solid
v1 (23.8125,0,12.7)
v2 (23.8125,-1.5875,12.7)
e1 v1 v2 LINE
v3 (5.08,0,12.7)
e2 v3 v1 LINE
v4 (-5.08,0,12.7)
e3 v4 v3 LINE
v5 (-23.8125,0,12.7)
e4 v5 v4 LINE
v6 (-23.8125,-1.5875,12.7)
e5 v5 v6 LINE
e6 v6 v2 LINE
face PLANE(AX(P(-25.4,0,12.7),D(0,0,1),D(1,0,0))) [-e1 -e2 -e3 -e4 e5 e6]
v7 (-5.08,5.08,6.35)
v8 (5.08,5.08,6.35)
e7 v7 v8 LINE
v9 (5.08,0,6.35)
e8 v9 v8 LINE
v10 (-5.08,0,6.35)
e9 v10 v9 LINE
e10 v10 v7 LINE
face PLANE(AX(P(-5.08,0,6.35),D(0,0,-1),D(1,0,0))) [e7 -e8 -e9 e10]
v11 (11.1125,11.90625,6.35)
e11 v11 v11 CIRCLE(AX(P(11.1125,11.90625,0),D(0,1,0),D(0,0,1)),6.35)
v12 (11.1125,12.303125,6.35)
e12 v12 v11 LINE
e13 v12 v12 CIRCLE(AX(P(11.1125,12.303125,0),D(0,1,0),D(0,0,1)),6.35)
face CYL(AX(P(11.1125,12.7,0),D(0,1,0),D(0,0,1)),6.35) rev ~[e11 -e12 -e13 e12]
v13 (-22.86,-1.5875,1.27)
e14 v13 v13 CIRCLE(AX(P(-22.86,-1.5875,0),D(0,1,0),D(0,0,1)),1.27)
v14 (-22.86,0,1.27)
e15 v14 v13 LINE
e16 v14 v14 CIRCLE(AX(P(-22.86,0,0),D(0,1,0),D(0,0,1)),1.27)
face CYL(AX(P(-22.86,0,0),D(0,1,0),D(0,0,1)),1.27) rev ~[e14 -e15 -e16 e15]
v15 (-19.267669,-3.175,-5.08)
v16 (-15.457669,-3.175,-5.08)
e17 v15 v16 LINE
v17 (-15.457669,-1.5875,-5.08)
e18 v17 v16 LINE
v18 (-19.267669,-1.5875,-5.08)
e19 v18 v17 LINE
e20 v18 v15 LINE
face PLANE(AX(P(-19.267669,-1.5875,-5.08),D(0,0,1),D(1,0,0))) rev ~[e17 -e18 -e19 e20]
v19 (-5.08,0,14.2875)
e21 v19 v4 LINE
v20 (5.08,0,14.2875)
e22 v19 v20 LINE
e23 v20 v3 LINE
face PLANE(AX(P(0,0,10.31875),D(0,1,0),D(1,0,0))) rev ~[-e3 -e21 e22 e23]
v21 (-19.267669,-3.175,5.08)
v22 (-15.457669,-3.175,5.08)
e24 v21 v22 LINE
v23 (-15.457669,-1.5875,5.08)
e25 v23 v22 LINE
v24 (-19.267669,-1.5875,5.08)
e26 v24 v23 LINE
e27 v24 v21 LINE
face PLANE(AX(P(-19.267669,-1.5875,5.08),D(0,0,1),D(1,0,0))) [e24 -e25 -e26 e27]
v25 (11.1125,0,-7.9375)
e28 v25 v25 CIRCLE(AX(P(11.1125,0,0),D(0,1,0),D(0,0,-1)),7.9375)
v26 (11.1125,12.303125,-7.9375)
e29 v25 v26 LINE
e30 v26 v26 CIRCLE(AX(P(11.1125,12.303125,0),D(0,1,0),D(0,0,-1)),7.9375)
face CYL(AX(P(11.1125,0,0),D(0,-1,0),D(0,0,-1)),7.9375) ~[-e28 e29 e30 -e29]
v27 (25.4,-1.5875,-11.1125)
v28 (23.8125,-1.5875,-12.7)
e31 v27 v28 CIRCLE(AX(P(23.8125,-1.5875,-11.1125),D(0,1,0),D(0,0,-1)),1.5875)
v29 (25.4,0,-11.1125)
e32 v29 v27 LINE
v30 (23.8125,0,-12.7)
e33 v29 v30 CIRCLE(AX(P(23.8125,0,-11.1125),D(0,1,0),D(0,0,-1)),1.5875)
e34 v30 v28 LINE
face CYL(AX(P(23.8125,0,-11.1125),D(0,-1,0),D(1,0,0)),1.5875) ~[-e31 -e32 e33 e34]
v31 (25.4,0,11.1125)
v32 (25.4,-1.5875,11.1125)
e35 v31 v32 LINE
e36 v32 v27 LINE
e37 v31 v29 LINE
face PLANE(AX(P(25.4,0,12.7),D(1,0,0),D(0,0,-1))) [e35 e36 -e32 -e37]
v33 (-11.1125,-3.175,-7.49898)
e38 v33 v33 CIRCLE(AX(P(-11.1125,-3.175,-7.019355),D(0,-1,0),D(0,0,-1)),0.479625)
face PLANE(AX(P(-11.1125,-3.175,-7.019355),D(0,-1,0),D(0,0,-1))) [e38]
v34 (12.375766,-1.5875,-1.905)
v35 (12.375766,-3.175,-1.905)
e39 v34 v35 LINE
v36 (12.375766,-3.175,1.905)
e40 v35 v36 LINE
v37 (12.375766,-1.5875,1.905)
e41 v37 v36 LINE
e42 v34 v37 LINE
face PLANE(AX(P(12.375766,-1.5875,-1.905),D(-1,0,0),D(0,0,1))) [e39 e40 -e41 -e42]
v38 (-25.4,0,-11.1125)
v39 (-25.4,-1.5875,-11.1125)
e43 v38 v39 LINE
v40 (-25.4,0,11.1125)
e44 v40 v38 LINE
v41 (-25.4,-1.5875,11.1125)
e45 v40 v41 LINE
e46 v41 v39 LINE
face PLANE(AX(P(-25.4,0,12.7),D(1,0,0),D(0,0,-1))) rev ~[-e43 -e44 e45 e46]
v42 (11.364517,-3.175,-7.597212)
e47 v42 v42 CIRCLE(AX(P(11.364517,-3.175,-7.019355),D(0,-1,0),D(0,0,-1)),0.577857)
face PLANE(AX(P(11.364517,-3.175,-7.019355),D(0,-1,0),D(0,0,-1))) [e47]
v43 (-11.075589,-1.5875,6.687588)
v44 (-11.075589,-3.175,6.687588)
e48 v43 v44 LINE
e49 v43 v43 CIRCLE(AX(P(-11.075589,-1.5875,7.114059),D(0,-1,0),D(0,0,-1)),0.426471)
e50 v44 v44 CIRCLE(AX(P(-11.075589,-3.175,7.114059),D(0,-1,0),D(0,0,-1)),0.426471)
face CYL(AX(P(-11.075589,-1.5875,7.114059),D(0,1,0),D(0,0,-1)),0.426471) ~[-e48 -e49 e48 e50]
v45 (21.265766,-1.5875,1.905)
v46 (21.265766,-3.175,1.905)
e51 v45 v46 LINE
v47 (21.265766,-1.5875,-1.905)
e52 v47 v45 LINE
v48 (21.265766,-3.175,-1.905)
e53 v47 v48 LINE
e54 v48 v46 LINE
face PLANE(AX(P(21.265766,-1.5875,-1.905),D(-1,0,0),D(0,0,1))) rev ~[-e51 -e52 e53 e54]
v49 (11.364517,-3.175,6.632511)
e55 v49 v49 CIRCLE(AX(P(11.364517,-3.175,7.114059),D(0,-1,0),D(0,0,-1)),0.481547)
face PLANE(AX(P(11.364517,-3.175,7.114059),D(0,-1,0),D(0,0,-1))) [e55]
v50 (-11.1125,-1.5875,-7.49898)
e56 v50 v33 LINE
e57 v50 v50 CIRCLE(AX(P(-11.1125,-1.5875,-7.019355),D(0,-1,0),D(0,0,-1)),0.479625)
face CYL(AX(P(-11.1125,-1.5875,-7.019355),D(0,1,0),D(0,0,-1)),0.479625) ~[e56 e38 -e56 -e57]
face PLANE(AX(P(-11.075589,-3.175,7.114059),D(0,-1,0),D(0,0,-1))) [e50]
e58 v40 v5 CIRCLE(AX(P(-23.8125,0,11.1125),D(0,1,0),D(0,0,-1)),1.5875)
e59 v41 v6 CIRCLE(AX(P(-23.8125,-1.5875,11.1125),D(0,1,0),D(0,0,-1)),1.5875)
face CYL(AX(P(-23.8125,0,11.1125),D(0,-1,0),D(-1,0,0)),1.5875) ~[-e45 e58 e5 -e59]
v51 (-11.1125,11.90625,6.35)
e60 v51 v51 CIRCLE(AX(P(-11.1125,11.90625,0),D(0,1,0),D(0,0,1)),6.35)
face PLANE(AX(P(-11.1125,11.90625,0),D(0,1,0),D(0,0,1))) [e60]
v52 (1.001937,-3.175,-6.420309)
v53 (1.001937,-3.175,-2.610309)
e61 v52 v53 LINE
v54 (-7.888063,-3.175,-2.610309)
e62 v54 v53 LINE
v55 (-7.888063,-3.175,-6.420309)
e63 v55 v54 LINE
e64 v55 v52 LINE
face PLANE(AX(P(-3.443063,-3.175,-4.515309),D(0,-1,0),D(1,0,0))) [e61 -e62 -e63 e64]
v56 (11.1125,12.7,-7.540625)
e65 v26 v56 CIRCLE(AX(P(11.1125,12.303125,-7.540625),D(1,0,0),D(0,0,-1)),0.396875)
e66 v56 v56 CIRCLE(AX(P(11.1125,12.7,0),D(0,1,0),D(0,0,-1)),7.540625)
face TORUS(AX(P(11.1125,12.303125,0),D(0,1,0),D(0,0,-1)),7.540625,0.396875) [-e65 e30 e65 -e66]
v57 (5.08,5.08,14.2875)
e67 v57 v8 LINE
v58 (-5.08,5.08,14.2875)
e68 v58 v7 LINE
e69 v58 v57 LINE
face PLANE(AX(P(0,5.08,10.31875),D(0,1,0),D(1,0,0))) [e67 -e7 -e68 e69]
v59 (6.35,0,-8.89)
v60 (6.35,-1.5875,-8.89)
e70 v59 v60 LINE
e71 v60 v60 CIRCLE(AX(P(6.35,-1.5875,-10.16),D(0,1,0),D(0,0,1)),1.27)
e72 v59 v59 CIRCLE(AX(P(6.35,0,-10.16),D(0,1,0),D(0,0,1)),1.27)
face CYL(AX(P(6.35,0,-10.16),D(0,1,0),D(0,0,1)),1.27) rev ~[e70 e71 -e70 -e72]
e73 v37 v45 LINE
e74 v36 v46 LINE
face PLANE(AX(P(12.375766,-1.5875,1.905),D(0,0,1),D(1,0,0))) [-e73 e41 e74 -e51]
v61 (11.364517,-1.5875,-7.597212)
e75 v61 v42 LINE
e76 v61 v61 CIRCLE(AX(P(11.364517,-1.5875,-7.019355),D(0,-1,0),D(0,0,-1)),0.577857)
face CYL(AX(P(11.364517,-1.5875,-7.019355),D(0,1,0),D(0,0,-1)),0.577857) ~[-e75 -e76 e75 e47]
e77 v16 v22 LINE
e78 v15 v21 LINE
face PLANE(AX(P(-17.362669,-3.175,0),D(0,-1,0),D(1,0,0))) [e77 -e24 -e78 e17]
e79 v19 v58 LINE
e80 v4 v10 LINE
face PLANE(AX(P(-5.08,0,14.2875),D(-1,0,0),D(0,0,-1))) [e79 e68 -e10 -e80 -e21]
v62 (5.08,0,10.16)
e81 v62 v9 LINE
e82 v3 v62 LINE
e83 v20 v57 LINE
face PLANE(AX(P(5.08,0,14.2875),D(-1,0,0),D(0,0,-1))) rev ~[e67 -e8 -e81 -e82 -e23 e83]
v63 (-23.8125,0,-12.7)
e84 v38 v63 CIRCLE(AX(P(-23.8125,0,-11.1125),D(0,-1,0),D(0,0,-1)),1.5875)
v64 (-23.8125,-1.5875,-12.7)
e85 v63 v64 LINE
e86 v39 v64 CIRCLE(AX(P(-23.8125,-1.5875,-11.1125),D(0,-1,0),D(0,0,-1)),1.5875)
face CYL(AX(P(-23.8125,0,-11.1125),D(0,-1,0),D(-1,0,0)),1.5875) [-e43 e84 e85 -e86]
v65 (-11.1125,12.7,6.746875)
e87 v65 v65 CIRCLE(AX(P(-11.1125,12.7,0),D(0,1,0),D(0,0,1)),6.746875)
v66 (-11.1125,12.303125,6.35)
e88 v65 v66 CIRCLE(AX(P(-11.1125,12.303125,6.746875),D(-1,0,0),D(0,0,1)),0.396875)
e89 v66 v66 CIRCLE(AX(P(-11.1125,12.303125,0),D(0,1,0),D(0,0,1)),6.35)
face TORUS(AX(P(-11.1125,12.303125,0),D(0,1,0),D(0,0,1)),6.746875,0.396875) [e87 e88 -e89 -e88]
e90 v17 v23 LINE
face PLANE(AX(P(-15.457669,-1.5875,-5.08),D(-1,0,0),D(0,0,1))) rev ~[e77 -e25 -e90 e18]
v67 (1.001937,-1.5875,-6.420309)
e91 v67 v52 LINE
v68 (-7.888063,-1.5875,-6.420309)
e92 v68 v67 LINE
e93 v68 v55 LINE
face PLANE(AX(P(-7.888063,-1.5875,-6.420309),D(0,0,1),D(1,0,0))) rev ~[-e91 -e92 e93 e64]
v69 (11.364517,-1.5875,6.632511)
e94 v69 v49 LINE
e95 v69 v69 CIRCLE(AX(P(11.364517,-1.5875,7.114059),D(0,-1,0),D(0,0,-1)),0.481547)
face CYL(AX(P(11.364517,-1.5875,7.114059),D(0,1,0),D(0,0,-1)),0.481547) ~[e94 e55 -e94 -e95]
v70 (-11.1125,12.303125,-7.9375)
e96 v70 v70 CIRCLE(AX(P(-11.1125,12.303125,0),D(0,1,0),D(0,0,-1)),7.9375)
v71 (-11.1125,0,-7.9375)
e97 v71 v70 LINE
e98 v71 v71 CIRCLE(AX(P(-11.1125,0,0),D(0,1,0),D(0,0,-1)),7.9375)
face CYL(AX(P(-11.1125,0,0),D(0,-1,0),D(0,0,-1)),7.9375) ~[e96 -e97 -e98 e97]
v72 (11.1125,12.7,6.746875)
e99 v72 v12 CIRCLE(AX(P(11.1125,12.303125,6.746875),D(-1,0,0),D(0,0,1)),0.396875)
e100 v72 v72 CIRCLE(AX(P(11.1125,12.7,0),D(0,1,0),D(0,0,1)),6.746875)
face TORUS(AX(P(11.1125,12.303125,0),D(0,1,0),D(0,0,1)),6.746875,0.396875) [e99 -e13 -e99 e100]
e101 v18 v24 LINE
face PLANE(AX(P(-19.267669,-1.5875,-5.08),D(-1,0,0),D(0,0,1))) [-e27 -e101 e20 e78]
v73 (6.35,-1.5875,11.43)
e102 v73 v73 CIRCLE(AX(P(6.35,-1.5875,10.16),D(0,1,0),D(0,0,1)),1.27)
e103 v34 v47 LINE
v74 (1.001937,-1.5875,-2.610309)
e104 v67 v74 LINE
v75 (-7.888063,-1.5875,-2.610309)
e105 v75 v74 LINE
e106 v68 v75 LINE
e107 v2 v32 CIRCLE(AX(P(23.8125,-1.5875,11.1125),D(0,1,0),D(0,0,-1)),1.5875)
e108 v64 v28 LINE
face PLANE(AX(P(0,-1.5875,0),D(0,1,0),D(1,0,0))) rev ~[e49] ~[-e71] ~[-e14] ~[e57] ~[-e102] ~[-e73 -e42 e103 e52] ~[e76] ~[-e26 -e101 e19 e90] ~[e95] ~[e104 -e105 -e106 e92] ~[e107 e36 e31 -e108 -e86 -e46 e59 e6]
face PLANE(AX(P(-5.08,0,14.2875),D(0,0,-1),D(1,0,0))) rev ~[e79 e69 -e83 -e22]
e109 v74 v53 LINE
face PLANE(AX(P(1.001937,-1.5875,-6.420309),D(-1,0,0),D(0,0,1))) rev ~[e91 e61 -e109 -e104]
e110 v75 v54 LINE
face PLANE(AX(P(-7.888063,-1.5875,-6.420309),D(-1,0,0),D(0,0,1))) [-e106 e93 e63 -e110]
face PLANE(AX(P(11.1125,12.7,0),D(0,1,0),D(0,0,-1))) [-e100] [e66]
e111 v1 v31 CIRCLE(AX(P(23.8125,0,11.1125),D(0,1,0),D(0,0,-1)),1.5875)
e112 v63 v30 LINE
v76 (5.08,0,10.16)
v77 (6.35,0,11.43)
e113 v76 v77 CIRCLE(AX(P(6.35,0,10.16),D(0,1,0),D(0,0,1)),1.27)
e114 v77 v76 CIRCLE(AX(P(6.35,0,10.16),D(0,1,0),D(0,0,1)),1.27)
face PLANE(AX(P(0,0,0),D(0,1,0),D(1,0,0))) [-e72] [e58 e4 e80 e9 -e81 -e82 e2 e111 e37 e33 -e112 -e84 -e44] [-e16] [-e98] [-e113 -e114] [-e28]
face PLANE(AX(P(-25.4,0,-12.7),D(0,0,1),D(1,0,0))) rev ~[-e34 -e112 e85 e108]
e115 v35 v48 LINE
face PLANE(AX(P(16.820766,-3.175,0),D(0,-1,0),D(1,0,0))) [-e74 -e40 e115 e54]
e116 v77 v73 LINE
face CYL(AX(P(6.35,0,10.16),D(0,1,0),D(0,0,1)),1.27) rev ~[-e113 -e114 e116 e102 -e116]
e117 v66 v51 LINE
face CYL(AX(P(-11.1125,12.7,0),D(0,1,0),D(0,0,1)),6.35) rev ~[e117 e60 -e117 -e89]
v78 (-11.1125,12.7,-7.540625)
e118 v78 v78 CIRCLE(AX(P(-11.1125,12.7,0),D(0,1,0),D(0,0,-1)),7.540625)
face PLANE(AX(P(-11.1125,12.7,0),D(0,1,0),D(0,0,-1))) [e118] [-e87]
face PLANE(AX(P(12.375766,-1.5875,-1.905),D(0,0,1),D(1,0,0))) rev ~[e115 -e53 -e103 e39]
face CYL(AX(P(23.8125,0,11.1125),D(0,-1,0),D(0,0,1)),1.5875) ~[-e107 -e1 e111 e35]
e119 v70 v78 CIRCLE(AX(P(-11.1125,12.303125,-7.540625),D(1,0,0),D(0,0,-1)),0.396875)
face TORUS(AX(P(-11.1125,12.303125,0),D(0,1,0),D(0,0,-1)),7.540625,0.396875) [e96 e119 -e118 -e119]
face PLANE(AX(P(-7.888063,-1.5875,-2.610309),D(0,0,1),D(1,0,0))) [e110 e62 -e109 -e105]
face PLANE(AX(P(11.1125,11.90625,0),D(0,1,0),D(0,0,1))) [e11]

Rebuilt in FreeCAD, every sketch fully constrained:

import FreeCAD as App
import Part
import Sketcher
from FreeCAD import Vector
Q = App.Units.Quantity


def edges_at(feature, points):
    """Names of the edges that pass closest to the given points."""
    edges = feature.Shape.Edges
    near = lambda p: min(range(len(edges)), key=lambda i: edges[i].distToShape(Part.Vertex(*p))[0])
    return sorted({f"Edge{near(p) + 1}" for p in points})


def add_polygon(sketch, points):
    """Adds a closed chain of lines whose ends are joined by coincident constraints."""
    first, n = sketch.GeometryCount, len(points)
    for a, b in zip(points, points[1:] + points[:1]):
        sketch.addGeometry(Part.LineSegment(App.Vector(*a, 0), App.Vector(*b, 0)), False)
    for i in range(n):
        sketch.addConstraint(Sketcher.Constraint("Coincident", first + i, 2, first + (i + 1) % n, 1))

doc = App.newDocument("Part")
body = doc.addObject("PartDesign::Body", "Body")

sketch1 = doc.addObject("Sketcher::SketchObject", "Sketch")
body.addObject(sketch1)
sketch1.AttachmentSupport = (doc.XZ_Plane, [""])
sketch1.MapMode = "FlatFace"
add_polygon(sketch1, [(-25, -13), (-25, 13), (25, 13), (25, -13)])
sketch1.addConstraint([
    Sketcher.Constraint("Vertical", 0),
    Sketcher.Constraint("Horizontal", 1),
    Sketcher.Constraint("Vertical", 2),
    Sketcher.Constraint("Horizontal", 3),
    Sketcher.Constraint("Symmetric", 0, 2, 2, 2, -1, 1),
    Sketcher.Constraint("DistanceX", 1, 1, 1, 2, Q("2 in")),
    Sketcher.Constraint("DistanceY", 0, 1, 0, 2, Q("1 in")),
])
pad1 = doc.addObject("PartDesign::Pad", "Pad")
body.addObject(pad1)
pad1.Profile = sketch1
pad1.Length = Q("0.0625 in")
doc.recompute()

fillet = doc.addObject("PartDesign::Fillet", "Fillet")
body.addObject(fillet)
fillet.Base = (pad1, edges_at(pad1, [
    (25.4, -0.794, 12.7),
    (-25.4, -0.794, 12.7),
    (-25.4, -0.794, -12.7),
    (25.4, -0.794, -12.7),
]))
fillet.Radius = Q("0.0625 in")

sketch2 = doc.addObject("Sketcher::SketchObject", "Sketch001")
body.addObject(sketch2)
sketch2.AttachmentSupport = (doc.XZ_Plane, [""])
sketch2.MapMode = "FlatFace"
sketch2.addGeometry([
    Part.Circle(Vector(-22.9, 0, 0), Vector(0, 0, 1), 1.3),
    Part.Circle(Vector(6.3, -10.2, 0), Vector(0, 0, 1), 1.3),
    Part.Circle(Vector(6.3, 10.2, 0), Vector(0, 0, 1), 1.3),
], False)
sketch2.addConstraint([
    Sketcher.Constraint("Equal", 0, 1),
    Sketcher.Constraint("Equal", 1, 2),
    Sketcher.Constraint("Symmetric", 1, 3, 2, 3, -1),
    Sketcher.Constraint("PointOnObject", 0, 3, -1),
    Sketcher.Constraint("Diameter", 0, Q("0.1 in")),
    Sketcher.Constraint("DistanceX", 0, 3, -1, 1, Q("0.9 in")),
    Sketcher.Constraint("DistanceY", 1, 3, -1, 1, Q("0.4 in")),
    Sketcher.Constraint("DistanceX", -1, 1, 1, 3, Q("0.25 in")),
])
pocket1 = doc.addObject("PartDesign::Pocket", "Pocket")
body.addObject(pocket1)
pocket1.Profile = sketch2
pocket1.Type = "ThroughAll"
pocket1.Reversed = True

sketch3 = doc.addObject("Sketcher::SketchObject", "Sketch002")
body.addObject(sketch3)
sketch3.AttachmentSupport = (doc.XZ_Plane, [""])
sketch3.MapMode = "FlatFace"
sketch3.addGeometry([
    Part.Circle(Vector(11, 0, 0), Vector(0, 0, 1), 8),
    Part.Circle(Vector(-11, 0, 0), Vector(0, 0, 1), 8),
], False)
sketch3.addConstraint([
    Sketcher.Constraint("Equal", 0, 1),
    Sketcher.Constraint("Symmetric", 0, 3, 1, 3, -1, 1),
    Sketcher.Constraint("PointOnObject", 0, 3, -1),
    Sketcher.Constraint("Diameter", 0, Q("0.625 in")),
    Sketcher.Constraint("DistanceX", -1, 1, 0, 3, Q("0.4375 in")),
])
pad2 = doc.addObject("PartDesign::Pad", "Pad001")
body.addObject(pad2)
pad2.Profile = sketch3
pad2.Length = Q("0.5 in")
pad2.Reversed = True

sketch4 = doc.addObject("Sketcher::SketchObject", "Sketch003")
body.addObject(sketch4)
sketch4.AttachmentSupport = (doc.XZ_Plane, [""])
sketch4.MapMode = "FlatFace"
sketch4.AttachmentOffset = App.Placement(Vector(0, 0, -0.5 * 25.4), App.Rotation())
sketch4.addGeometry([
    Part.Circle(Vector(-11, 0, 0), Vector(0, 0, 1), 6),
    Part.Circle(Vector(11, 0, 0), Vector(0, 0, 1), 6),
], False)
sketch4.addConstraint([
    Sketcher.Constraint("Equal", 0, 1),
    Sketcher.Constraint("Symmetric", 0, 3, 1, 3, -1, 1),
    Sketcher.Constraint("PointOnObject", 0, 3, -1),
    Sketcher.Constraint("Diameter", 0, Q("0.5 in")),
    Sketcher.Constraint("DistanceX", 0, 3, -1, 1, Q("0.4375 in")),
])
pocket2 = doc.addObject("PartDesign::Pocket", "Pocket001")
body.addObject(pocket2)
pocket2.Profile = sketch4
pocket2.Length = Q("0.03125 in")
pocket2.Reversed = True
doc.recompute()

fillet2 = doc.addObject("PartDesign::Fillet", "Fillet001")
body.addObject(fillet2)
fillet2.Base = (pocket2, edges_at(pocket2, [
    (11.113, 12.7, 7.938),
    (-11.113, 12.7, 7.938),
    (-11.113, 12.7, -6.35),
    (11.113, 12.7, -6.35),
]))
fillet2.Radius = Q("0.015625 in")

sketch5 = doc.addObject("Sketcher::SketchObject", "Sketch004")
body.addObject(sketch5)
sketch5.AttachmentSupport = (doc.XZ_Plane, [""])
sketch5.MapMode = "FlatFace"
add_polygon(sketch5, [(-5, 6), (-5, 14), (5, 14), (5, 6)])
sketch5.addConstraint([
    Sketcher.Constraint("Vertical", 0),
    Sketcher.Constraint("Horizontal", 1),
    Sketcher.Constraint("Vertical", 2),
    Sketcher.Constraint("Horizontal", 3),
    Sketcher.Constraint("DistanceX", 1, 1, 1, 2, Q("0.4 in")),
    Sketcher.Constraint("DistanceX", 0, 2, -1, 1, Q("0.2 in")),
    Sketcher.Constraint("DistanceY", 0, 1, 0, 2, Q("0.3125 in")),
    Sketcher.Constraint("DistanceY", -1, 1, 2, 2, Q("0.25 in")),
])
pad3 = doc.addObject("PartDesign::Pad", "Pad002")
body.addObject(pad3)
pad3.Profile = sketch5
pad3.Length = Q("0.2 in")
pad3.Reversed = True

sketch6 = doc.addObject("Sketcher::SketchObject", "Sketch005")
body.addObject(sketch6)
sketch6.AttachmentSupport = (doc.XZ_Plane, [""])
sketch6.MapMode = "FlatFace"
sketch6.AttachmentOffset = App.Placement(Vector(0, 0, 0.0625 * 25.4), App.Rotation())
sketch6.addGeometry(Part.Circle(Vector(-11.08, 7.11, 0), Vector(0, 0, 1), 0.43), False)
sketch6.addGeometry(Part.Circle(Vector(-11.11, -7.02, 0), Vector(0, 0, 1), 0.48), False)
sketch6.addGeometry(Part.Circle(Vector(11.36, -7.02, 0), Vector(0, 0, 1), 0.58), False)
sketch6.addGeometry(Part.Circle(Vector(11.36, 7.11, 0), Vector(0, 0, 1), 0.48), False)
add_polygon(sketch6, [(-19.27, 5.08), (-19.27, -5.08), (-15.46, -5.08), (-15.46, 5.08)])
add_polygon(sketch6, [(12.38, 1.91), (12.38, -1.91), (21.27, -1.91), (21.27, 1.91)])
add_polygon(sketch6, [(-7.89, -2.61), (-7.89, -6.42), (1, -6.42), (1, -2.61)])
sketch6.addConstraint([
    Sketcher.Constraint("Vertical", 4),
    Sketcher.Constraint("Horizontal", 5),
    Sketcher.Constraint("Vertical", 6),
    Sketcher.Constraint("Horizontal", 7),
    Sketcher.Constraint("Vertical", 8),
    Sketcher.Constraint("Horizontal", 9),
    Sketcher.Constraint("Vertical", 10),
    Sketcher.Constraint("Horizontal", 11),
    Sketcher.Constraint("Vertical", 12),
    Sketcher.Constraint("Horizontal", 13),
    Sketcher.Constraint("Vertical", 14),
    Sketcher.Constraint("Horizontal", 15),
    Sketcher.Constraint("Horizontal", 1, 3, 2, 3),
    Sketcher.Constraint("Horizontal", 0, 3, 3, 3),
    Sketcher.Constraint("Vertical", 2, 3, 3, 3),
    Sketcher.Constraint("Equal", 11, 13),
    Sketcher.Constraint("Equal", 7, 8),
    Sketcher.Constraint("Equal", 10, 12),
    Sketcher.Constraint("DistanceY", 4, 2, 4, 1, Q("0.4 in")),
    Sketcher.Constraint("DistanceX", 5, 1, 5, 2, Q("0.15 in")),
    Sketcher.Constraint("DistanceX", 9, 1, 9, 2, Q("0.35 in")),
    Sketcher.Constraint("DistanceY", 4, 2, -1, 1, Q("0.2 in")),
    Sketcher.Constraint("Diameter", 0, Q("0.852941 mm")),
    Sketcher.Constraint("Diameter", 1, Q("0.95925 mm")),
    Sketcher.Constraint("DistanceX", 1, 3, -1, 1, Q("0.4375 in")),
    Sketcher.Constraint("DistanceY", 8, 2, -1, 1, Q("0.075 in")),
    Sketcher.Constraint("Diameter", 2, Q("1.155714 mm")),
    Sketcher.Constraint("Diameter", 3, Q("0.963095 mm")),
    Sketcher.Constraint("DistanceX", 0, 3, -1, 1, Q("11.075589 mm")),
    Sketcher.Constraint("DistanceY", -1, 1, 0, 3, Q("7.114059 mm")),
    Sketcher.Constraint("DistanceX", 4, 2, -1, 1, Q("19.267669 mm")),
    Sketcher.Constraint("DistanceY", 12, 2, -1, 1, Q("6.420309 mm")),
    Sketcher.Constraint("DistanceX", 2, 3, 8, 2, Q("1.011249 mm")),
    Sketcher.Constraint("DistanceX", 13, 2, 2, 3, Q("10.36258 mm")),
    Sketcher.Constraint("DistanceY", 1, 3, -1, 1, Q("7.019355 mm")),
    Sketcher.Constraint("DistanceX", -1, 1, 2, 3, Q("11.364517 mm")),
])
pad4 = doc.addObject("PartDesign::Pad", "Pad003")
body.addObject(pad4)
pad4.Profile = sketch6
pad4.Length = Q("0.0625 in")

doc.recompute()
